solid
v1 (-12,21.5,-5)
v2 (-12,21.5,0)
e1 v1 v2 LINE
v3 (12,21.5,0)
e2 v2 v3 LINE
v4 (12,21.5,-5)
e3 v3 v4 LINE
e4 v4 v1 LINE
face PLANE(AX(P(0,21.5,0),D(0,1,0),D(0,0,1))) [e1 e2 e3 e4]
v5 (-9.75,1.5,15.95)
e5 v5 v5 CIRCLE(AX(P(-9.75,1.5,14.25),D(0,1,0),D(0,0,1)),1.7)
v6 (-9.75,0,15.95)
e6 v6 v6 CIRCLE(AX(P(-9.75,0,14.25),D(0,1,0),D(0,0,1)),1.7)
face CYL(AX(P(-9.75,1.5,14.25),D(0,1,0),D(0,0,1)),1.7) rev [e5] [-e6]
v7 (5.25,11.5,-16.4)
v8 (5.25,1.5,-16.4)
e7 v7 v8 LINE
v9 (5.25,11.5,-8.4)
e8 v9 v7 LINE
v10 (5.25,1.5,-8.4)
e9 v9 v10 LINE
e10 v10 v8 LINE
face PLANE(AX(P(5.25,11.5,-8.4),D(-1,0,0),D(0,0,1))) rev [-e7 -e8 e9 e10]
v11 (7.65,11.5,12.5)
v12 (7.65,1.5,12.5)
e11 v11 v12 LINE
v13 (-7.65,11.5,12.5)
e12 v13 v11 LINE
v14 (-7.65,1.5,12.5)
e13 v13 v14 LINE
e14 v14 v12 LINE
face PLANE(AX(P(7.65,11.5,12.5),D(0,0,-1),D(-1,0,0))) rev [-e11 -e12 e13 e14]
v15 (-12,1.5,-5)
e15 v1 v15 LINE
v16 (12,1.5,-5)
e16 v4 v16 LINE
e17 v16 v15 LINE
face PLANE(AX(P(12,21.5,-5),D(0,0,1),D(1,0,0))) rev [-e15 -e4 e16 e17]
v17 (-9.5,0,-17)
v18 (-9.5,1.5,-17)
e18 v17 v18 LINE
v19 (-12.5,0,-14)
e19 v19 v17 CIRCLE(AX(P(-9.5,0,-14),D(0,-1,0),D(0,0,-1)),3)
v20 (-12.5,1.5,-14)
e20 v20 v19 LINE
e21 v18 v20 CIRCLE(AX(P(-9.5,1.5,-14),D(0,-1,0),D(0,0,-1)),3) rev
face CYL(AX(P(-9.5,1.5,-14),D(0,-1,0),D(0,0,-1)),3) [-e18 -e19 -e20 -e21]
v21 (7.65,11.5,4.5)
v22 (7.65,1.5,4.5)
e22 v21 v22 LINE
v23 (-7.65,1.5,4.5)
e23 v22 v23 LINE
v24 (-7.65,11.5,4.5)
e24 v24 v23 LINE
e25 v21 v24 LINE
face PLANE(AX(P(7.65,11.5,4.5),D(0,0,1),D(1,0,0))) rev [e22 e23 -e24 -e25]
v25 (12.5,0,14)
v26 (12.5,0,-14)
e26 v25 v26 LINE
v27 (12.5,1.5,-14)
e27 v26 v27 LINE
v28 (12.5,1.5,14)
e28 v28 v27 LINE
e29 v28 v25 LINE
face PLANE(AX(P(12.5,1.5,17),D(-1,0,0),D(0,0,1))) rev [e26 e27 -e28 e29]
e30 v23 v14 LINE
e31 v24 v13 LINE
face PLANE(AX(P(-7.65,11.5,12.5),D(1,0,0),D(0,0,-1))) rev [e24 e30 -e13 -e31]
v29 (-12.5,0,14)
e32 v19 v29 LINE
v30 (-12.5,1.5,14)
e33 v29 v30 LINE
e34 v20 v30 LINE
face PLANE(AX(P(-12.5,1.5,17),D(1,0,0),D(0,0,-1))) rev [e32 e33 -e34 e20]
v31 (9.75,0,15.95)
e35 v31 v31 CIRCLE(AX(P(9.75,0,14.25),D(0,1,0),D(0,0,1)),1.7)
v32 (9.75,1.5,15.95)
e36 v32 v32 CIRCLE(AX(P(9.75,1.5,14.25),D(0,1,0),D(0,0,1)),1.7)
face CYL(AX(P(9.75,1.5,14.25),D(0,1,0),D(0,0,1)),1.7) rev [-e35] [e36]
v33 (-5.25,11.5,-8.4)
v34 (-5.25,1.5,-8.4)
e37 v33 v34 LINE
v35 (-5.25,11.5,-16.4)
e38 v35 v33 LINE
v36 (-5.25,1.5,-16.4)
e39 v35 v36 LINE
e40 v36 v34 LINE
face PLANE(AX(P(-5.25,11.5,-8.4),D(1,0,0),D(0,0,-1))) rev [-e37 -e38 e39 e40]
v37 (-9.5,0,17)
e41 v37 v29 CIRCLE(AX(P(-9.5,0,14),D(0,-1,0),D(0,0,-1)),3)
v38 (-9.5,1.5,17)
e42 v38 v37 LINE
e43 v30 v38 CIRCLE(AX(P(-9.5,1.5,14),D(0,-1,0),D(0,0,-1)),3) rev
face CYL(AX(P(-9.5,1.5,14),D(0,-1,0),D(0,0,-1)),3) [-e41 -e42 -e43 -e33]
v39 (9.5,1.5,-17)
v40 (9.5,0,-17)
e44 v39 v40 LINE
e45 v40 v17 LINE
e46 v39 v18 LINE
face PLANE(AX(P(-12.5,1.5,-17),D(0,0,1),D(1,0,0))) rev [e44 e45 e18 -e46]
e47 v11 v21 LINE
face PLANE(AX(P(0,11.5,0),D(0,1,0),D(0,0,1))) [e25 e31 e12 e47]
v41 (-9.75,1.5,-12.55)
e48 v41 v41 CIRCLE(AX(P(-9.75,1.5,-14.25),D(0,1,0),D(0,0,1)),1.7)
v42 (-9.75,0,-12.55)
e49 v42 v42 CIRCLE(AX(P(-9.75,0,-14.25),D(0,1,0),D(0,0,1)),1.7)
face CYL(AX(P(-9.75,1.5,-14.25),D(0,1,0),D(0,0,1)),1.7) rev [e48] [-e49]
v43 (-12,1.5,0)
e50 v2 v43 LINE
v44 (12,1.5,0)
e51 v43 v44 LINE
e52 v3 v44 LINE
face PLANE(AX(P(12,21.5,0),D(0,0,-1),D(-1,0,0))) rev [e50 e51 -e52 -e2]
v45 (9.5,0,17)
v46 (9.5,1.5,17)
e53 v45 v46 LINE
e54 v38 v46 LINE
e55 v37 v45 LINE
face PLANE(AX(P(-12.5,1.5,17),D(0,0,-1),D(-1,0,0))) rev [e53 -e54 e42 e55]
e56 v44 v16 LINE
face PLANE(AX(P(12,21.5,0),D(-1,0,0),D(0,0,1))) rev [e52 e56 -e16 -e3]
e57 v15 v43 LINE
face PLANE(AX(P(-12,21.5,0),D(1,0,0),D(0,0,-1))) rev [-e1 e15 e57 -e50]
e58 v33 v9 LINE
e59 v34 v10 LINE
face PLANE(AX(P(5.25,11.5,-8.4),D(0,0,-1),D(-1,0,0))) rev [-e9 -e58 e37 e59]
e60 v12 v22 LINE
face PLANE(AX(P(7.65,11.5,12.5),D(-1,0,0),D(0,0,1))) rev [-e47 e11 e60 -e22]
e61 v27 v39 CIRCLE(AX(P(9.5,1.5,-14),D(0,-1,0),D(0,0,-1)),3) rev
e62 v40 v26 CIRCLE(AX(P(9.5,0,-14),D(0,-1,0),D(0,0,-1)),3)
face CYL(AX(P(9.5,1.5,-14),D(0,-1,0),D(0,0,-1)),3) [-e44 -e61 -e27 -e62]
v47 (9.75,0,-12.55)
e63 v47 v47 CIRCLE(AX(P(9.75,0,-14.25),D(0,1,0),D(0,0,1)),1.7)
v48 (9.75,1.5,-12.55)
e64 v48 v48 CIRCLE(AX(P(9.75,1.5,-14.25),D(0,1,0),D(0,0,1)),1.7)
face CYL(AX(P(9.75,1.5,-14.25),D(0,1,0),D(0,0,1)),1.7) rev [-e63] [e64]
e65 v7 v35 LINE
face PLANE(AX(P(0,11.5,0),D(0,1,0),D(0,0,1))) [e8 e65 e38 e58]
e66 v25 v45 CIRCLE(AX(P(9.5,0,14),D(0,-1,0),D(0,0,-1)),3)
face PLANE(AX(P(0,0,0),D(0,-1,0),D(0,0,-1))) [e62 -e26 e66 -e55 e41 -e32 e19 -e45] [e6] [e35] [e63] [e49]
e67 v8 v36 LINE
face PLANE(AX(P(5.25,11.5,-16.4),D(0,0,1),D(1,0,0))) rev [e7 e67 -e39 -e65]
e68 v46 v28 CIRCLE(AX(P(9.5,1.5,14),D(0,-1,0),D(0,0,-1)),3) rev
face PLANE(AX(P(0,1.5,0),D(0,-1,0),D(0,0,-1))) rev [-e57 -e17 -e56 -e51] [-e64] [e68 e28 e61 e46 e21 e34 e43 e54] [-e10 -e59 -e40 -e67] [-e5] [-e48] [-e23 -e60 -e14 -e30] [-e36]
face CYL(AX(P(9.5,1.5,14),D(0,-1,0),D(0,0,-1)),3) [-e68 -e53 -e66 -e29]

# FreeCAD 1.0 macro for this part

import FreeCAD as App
import Part
import Sketcher

V = App.Vector
Q = App.Units.Quantity


def edges_at(feature, points):
    """Names of the edges that pass closest to the given points."""
    edges = feature.Shape.Edges
    near = lambda p: min(range(len(edges)), key=lambda i: edges[i].distToShape(Part.Vertex(*p))[0])
    return sorted({f"Edge{near(p) + 1}" for p in points})

doc = App.newDocument("Part")
params = doc.addObject("Spreadsheet::Sheet", "Params")
for row, (alias, value) in enumerate([
    ("sketch1_width", "25 mm"),
    ("sketch1_height", "34 mm"),
    ("pad1_length", "1.5 mm"),
    ("fillet_radius", "3 mm"),
    ("sketch2_diameter", "3.4 mm"),
    ("hole_diameter", "3.4 mm"),
    ("sketch3_width", "24 mm"),
    ("sketch3_height", "5 mm"),
    ("pad2_length", "20 mm"),
    ("sketch4_height", "8 mm"),
    ("sketch4_width", "10.5 mm"),
    ("sketch4_width2", "15.3 mm"),
    ("pad3_length", "10 mm"),
], start=1):
    params.set(f"A{row}", alias)
    params.set(f"B{row}", "=" + value)
    params.setAlias(f"B{row}", alias)

body = doc.addObject("PartDesign::Body", "Body")

# Sketch on XZ plane
sketch1 = body.newObject("Sketcher::SketchObject", "Sketch")
sketch1.AttachmentSupport = (doc.getObject("XZ_Plane"), [""])
sketch1.MapMode = "FlatFace"
sketch1.addGeometry([
    Part.LineSegment(V(-12.5, -17, 0), V(-12.5, 17, 0)),
    Part.LineSegment(V(-12.5, 17, 0), V(12.5, 17, 0)),
    Part.LineSegment(V(12.5, 17, 0), V(12.5, -17, 0)),
    Part.LineSegment(V(12.5, -17, 0), V(-12.5, -17, 0)),
], False)
sketch1.addConstraint([
    Sketcher.Constraint("Coincident", 0, 2, 1, 1),
    Sketcher.Constraint("Coincident", 1, 2, 2, 1),
    Sketcher.Constraint("Coincident", 2, 2, 3, 1),
    Sketcher.Constraint("Coincident", 3, 2, 0, 1),
    Sketcher.Constraint("Vertical", 0),
    Sketcher.Constraint("Horizontal", 1),
    Sketcher.Constraint("Vertical", 2),
    Sketcher.Constraint("Horizontal", 3),
    Sketcher.Constraint("Symmetric", 0, 2, 2, 2, -1, 1),
    Sketcher.Constraint("DistanceX", 1, 1, 1, 2, Q("25 mm")),
    Sketcher.Constraint("DistanceY", 0, 1, 0, 2, Q("34 mm")),
])
sketch1.setExpression("Constraints[9]", "Params.sketch1_width")
sketch1.setExpression("Constraints[10]", "Params.sketch1_height")
pad1 = body.newObject("PartDesign::Pad", "Pad")
pad1.Profile = sketch1
pad1.setExpression("Length", "Params.pad1_length")
pad1.Reversed = True
doc.recompute()

fillet = body.newObject("PartDesign::Fillet", "Fillet")
fillet.Base = (pad1, edges_at(pad1, [
    (12.5, 0.75, 17),
    (-12.5, 0.75, 17),
    (-12.5, 0.75, -17),
    (12.5, 0.75, -17),
]))
fillet.setExpression("Radius", "Params.fillet_radius")

# Sketch on XZ plane
sketch2 = body.newObject("Sketcher::SketchObject", "Sketch001")
sketch2.AttachmentSupport = (doc.getObject("XZ_Plane"), [""])
sketch2.MapMode = "FlatFace"
sketch2.AttachmentOffset = App.Placement(V(0, 0, -1.5), App.Rotation())
sketch2.addGeometry([
    Part.Circle(V(-9.75, -14.25, 0), V(0, 0, 1), 1.7),
    Part.Circle(V(9.75, -14.25, 0), V(0, 0, 1), 1.7),
    Part.Circle(V(9.75, 14.25, 0), V(0, 0, 1), 1.7),
    Part.Circle(V(-9.75, 14.25, 0), V(0, 0, 1), 1.7),
], False)
sketch2.addConstraint([
    Sketcher.Constraint("Equal", 0, 1),
    Sketcher.Constraint("Equal", 1, 2),
    Sketcher.Constraint("Equal", 2, 3),
    Sketcher.Constraint("Symmetric", 0, 3, 2, 3, -1, 1),
    Sketcher.Constraint("Symmetric", 1, 3, 3, 3, -1, 1),
    Sketcher.Constraint("Symmetric", 0, 3, 1, 3, -2),
    Sketcher.Constraint("Diameter", 0, Q("3.4 mm")),
    Sketcher.Constraint("DistanceX", 0, 3, 1, 3, Q("19.5 mm")),
    Sketcher.Constraint("DistanceY", 1, 3, 2, 3, Q("28.5 mm")),
])
sketch2.setExpression("Constraints[6]", "Params.sketch2_diameter")
doc.recompute()
hole = body.newObject("PartDesign::Hole", "Hole")
hole.Profile = sketch2
hole.ThreadType = "None"
hole.setExpression("Diameter", "Params.hole_diameter")
hole.DepthType = "ThroughAll"
hole.Reversed = True

# Sketch on XZ plane
sketch3 = body.newObject("Sketcher::SketchObject", "Sketch002")
sketch3.AttachmentSupport = (doc.getObject("XZ_Plane"), [""])
sketch3.MapMode = "FlatFace"
sketch3.AttachmentOffset = App.Placement(V(0, 0, -1.5), App.Rotation())
sketch3.addGeometry([
    Part.LineSegment(V(-12, -5, 0), V(-12, 0, 0)),
    Part.LineSegment(V(-12, 0, 0), V(12, 0, 0)),
    Part.LineSegment(V(12, 0, 0), V(12, -5, 0)),
    Part.LineSegment(V(12, -5, 0), V(-12, -5, 0)),
], False)
sketch3.addConstraint([
    Sketcher.Constraint("Coincident", 0, 2, 1, 1),
    Sketcher.Constraint("Coincident", 1, 2, 2, 1),
    Sketcher.Constraint("Coincident", 2, 2, 3, 1),
    Sketcher.Constraint("Coincident", 3, 2, 0, 1),
    Sketcher.Constraint("Vertical", 0),
    Sketcher.Constraint("Horizontal", 1),
    Sketcher.Constraint("Vertical", 2),
    Sketcher.Constraint("Horizontal", 3),
    Sketcher.Constraint("Symmetric", 0, 2, 1, 2, -1, 1),
    Sketcher.Constraint("DistanceX", 1, 1, 1, 2, Q("24 mm")),
    Sketcher.Constraint("DistanceY", 0, 1, 0, 2, Q("5 mm")),
])
sketch3.setExpression("Constraints[9]", "Params.sketch3_width")
sketch3.setExpression("Constraints[10]", "Params.sketch3_height")
pad2 = body.newObject("PartDesign::Pad", "Pad001")
pad2.Profile = sketch3
pad2.setExpression("Length", "Params.pad2_length")
pad2.Reversed = True

# Sketch on XZ plane
sketch4 = body.newObject("Sketcher::SketchObject", "Sketch003")
sketch4.AttachmentSupport = (doc.getObject("XZ_Plane"), [""])
sketch4.MapMode = "FlatFace"
sketch4.AttachmentOffset = App.Placement(V(0, 0, -1.5), App.Rotation())
sketch4.addGeometry([
    Part.LineSegment(V(-5.25, -16.4, 0), V(-5.25, -8.4, 0)),  # 0
    Part.LineSegment(V(-5.25, -8.4, 0), V(5.25, -8.4, 0)),  # 1
    Part.LineSegment(V(5.25, -8.4, 0), V(5.25, -16.4, 0)),  # 2
    Part.LineSegment(V(5.25, -16.4, 0), V(-5.25, -16.4, 0)),  # 3
    Part.LineSegment(V(-7.65, 4.5, 0), V(-7.65, 12.5, 0)),  # 4
    Part.LineSegment(V(-7.65, 12.5, 0), V(7.65, 12.5, 0)),  # 5
    Part.LineSegment(V(7.65, 12.5, 0), V(7.65, 4.5, 0)),  # 6
    Part.LineSegment(V(7.65, 4.5, 0), V(-7.65, 4.5, 0)),  # 7
], False)
sketch4.addConstraint([
    Sketcher.Constraint("Coincident", 0, 2, 1, 1),
    Sketcher.Constraint("Coincident", 1, 2, 2, 1),
    Sketcher.Constraint("Coincident", 2, 2, 3, 1),
    Sketcher.Constraint("Coincident", 3, 2, 0, 1),
    Sketcher.Constraint("Coincident", 4, 2, 5, 1),
    Sketcher.Constraint("Coincident", 5, 2, 6, 1),
    Sketcher.Constraint("Coincident", 6, 2, 7, 1),
    Sketcher.Constraint("Coincident", 7, 2, 4, 1),
    Sketcher.Constraint("Vertical", 0),
    Sketcher.Constraint("Horizontal", 1),
    Sketcher.Constraint("Vertical", 2),
    Sketcher.Constraint("Horizontal", 3),
    Sketcher.Constraint("Vertical", 4),
    Sketcher.Constraint("Horizontal", 5),
    Sketcher.Constraint("Vertical", 6),
    Sketcher.Constraint("Horizontal", 7),
    Sketcher.Constraint("Equal", 2, 4),
    Sketcher.Constraint("DistanceY", 0, 1, 0, 2, Q("8 mm")),
    Sketcher.Constraint("DistanceX", 1, 1, 1, 2, Q("10.5 mm")),
    Sketcher.Constraint("DistanceX", 5, 1, 5, 2, Q("15.3 mm")),
    Sketcher.Constraint("DistanceY", 0, 2, -1, 1, Q("8.4 mm")),
    Sketcher.Constraint("DistanceY", -1, 1, 4, 2, Q("12.5 mm")),
    Sketcher.Constraint("DistanceX", 4, 2, 0, 2, Q("2.4 mm")),
    Sketcher.Constraint("DistanceX", 0, 2, -1, 1, Q("5.25 mm")),
])
sketch4.setExpression("Constraints[17]", "Params.sketch4_height")
sketch4.setExpression("Constraints[18]", "Params.sketch4_width")
sketch4.setExpression("Constraints[19]", "Params.sketch4_width2")
pad3 = body.newObject("PartDesign::Pad", "Pad002")
pad3.Profile = sketch4
pad3.setExpression("Length", "Params.pad3_length")
pad3.Reversed = True

doc.recompute()
